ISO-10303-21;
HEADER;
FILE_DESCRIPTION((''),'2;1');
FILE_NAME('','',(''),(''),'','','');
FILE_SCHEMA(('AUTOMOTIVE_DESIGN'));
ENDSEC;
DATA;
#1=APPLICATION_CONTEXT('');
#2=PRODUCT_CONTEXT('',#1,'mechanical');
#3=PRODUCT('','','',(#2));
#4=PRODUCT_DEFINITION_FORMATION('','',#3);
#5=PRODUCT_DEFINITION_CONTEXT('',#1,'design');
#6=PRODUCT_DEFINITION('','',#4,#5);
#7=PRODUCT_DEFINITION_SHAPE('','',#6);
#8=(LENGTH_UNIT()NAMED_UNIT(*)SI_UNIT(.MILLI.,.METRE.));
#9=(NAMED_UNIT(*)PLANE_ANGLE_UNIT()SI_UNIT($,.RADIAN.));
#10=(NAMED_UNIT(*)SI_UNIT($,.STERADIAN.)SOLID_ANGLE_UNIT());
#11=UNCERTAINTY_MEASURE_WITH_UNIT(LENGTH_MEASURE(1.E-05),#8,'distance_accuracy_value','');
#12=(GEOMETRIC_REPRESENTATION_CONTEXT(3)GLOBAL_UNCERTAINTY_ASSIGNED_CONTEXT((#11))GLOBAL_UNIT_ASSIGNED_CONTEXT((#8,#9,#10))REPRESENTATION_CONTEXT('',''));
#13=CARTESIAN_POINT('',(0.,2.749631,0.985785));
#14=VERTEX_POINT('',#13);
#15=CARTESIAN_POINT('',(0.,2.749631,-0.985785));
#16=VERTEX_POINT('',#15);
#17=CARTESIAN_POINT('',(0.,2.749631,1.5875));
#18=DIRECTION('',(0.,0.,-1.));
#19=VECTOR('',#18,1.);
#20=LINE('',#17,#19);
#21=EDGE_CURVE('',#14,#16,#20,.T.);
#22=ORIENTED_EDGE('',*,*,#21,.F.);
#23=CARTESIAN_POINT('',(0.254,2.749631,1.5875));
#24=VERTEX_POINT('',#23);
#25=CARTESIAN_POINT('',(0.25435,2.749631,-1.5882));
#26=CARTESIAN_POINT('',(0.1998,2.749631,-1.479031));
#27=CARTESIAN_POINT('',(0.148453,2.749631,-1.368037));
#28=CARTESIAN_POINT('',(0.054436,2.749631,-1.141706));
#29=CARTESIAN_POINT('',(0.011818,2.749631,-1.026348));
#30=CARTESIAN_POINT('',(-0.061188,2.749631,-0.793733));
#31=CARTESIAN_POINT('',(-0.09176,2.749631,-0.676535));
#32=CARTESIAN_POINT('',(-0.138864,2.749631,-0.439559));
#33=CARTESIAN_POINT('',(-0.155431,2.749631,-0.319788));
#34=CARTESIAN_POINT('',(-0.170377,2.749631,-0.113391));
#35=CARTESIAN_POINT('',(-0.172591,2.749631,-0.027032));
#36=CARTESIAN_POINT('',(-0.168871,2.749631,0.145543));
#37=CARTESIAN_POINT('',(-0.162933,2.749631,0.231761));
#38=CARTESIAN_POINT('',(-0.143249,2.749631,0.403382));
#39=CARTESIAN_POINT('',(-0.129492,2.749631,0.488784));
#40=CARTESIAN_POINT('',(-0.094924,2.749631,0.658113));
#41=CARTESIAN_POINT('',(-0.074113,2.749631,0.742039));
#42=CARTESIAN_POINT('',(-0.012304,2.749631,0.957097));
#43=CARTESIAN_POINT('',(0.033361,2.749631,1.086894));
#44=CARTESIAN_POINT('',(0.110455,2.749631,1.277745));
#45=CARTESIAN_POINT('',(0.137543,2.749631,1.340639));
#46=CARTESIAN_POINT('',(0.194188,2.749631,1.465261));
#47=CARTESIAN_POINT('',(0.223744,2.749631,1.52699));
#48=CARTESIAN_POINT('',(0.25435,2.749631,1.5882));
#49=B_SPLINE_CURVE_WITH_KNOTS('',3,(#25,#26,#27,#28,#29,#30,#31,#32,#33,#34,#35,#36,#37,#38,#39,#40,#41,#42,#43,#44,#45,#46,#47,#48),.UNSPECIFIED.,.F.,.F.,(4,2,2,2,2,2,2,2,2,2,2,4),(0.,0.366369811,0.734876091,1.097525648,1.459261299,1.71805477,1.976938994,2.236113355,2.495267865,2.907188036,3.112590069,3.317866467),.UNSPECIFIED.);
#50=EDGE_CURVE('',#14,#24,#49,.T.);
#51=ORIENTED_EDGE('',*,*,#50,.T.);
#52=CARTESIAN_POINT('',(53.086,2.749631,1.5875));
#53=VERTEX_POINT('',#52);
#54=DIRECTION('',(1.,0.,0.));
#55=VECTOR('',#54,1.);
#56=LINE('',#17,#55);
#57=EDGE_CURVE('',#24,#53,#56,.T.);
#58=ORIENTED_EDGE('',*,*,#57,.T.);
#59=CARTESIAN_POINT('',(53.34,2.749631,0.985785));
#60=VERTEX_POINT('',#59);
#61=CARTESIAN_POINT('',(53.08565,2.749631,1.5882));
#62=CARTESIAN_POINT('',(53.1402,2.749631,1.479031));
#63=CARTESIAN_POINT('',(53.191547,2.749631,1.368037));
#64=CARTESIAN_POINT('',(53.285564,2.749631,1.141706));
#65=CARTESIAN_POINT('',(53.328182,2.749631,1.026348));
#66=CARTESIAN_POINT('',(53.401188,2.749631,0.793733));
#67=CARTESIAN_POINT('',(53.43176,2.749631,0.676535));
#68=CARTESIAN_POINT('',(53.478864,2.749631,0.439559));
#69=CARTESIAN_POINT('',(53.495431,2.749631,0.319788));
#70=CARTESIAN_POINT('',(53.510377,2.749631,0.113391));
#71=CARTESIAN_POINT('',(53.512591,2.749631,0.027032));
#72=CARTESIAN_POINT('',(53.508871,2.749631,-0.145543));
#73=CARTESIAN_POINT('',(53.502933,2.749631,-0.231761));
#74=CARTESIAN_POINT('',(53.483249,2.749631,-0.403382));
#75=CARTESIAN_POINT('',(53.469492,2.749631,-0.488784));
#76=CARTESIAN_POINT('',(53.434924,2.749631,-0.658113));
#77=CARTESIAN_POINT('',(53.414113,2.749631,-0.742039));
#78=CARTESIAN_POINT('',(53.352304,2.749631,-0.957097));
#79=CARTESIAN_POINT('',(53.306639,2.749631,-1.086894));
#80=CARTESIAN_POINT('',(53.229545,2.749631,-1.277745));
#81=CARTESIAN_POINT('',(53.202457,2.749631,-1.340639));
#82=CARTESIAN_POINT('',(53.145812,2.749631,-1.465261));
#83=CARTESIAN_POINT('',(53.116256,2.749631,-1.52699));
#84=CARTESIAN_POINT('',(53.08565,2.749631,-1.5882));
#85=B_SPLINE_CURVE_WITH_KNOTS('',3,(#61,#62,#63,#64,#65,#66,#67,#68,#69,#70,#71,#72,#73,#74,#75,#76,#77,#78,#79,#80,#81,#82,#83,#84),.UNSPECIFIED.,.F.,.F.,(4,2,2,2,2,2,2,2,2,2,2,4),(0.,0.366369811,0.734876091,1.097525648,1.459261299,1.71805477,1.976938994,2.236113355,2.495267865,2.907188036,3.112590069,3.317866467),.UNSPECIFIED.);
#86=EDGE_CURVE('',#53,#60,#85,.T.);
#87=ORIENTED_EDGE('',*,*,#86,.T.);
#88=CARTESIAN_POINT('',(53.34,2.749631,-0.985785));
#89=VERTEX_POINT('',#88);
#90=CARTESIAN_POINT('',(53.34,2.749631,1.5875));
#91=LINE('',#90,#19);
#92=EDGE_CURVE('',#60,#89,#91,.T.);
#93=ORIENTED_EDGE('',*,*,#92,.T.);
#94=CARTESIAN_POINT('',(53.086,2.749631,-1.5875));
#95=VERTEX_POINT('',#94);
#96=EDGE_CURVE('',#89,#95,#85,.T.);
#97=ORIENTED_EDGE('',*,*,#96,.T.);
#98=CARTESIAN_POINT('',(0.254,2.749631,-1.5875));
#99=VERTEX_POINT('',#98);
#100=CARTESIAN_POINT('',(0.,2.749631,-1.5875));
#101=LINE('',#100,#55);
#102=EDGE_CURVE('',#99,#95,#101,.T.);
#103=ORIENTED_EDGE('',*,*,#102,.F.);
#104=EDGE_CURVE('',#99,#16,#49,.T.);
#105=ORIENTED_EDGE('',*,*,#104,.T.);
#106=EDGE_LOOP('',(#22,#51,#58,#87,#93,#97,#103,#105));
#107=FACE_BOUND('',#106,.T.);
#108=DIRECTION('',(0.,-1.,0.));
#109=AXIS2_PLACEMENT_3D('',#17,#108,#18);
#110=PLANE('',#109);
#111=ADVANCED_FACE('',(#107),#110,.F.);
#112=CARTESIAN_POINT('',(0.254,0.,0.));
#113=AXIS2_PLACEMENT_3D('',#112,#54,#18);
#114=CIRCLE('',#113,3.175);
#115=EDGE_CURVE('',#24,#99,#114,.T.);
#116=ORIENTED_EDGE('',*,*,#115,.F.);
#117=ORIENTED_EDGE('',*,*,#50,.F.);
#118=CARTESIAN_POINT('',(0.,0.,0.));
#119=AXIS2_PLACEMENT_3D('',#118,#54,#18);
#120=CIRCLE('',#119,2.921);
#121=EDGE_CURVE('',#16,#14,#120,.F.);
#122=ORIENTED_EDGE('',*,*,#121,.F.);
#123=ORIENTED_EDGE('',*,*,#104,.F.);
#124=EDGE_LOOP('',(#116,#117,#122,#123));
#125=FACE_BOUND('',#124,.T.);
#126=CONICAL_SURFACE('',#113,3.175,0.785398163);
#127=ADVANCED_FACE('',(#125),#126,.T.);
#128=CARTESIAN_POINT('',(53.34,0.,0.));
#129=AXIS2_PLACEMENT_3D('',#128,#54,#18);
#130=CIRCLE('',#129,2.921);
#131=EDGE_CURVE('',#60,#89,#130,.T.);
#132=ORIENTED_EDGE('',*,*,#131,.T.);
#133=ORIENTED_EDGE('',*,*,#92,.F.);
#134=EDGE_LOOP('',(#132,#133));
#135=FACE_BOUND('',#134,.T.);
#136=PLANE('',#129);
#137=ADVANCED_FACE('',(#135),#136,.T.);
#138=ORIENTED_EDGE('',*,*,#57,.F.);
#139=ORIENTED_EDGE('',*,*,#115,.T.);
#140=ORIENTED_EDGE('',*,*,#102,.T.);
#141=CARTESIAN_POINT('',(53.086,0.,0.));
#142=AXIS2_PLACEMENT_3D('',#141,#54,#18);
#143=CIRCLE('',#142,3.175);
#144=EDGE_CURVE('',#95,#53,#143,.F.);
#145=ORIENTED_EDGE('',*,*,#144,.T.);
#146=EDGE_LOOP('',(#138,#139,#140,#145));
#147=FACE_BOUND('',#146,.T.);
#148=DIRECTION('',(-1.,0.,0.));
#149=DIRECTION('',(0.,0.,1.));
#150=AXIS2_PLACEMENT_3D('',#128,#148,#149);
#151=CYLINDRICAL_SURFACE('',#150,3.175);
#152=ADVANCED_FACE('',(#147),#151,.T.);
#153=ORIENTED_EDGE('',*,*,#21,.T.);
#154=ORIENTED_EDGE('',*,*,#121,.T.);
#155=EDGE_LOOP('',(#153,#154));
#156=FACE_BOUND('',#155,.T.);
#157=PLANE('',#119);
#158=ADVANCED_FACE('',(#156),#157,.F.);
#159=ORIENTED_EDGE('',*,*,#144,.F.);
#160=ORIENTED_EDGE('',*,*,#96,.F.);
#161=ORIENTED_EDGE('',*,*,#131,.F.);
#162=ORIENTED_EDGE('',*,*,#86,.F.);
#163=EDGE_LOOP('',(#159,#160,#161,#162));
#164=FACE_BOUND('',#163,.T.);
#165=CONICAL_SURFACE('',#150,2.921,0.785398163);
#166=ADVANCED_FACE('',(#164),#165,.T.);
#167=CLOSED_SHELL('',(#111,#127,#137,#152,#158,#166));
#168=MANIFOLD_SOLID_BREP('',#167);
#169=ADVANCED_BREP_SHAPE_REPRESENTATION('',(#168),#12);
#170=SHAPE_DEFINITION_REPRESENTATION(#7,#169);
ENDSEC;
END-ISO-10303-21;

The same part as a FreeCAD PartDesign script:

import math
import FreeCAD as App
import Part
import Sketcher
Q = App.Units.Quantity


def edges_at(feature, points):
    """Names of the edges that pass closest to the given points."""
    edges = feature.Shape.Edges
    near = lambda p: min(range(len(edges)), key=lambda i: edges[i].distToShape(Part.Vertex(*p))[0])
    return sorted({f"Edge{near(p) + 1}" for p in points})

doc = App.newDocument("Part")
body = doc.addObject("PartDesign::Body", "Body")

# Sketch on YZ plane
sketch1 = body.newObject("Sketcher::SketchObject", "Sketch")
sketch1.AttachmentSupport = (doc.getObject("YZ_Plane"), [""])
sketch1.MapMode = "FlatFace"
sketch1.addGeometry(Part.Circle(App.Vector(0, 0, 0), App.Vector(0, 0, 1), 3.2), False)
sketch1.addConstraint(Sketcher.Constraint("Coincident", 0, 3, -1, 1))
sketch1.addConstraint(Sketcher.Constraint("Diameter", 0, Q("0.25 in")))
pad1 = body.newObject("PartDesign::Pad", "Pad")
pad1.Profile = sketch1
pad1.Length = Q("2.1 in")
doc.recompute()

chamfer = body.newObject("PartDesign::Chamfer", "Chamfer")
chamfer.Base = (pad1, edges_at(pad1, [(0, 0, 3.175), (53.34, 0, 3.175)]))
chamfer.Size = Q("0.01 in")

# Sketch on YZ plane
sketch2 = body.newObject("Sketcher::SketchObject", "Sketch001")
sketch2.AttachmentSupport = (doc.getObject("YZ_Plane"), [""])
sketch2.MapMode = "FlatFace"
sketch2.AttachmentOffset = App.Placement(App.Vector(0, 0, 2.1 * 25.4), App.Rotation())
sketch2.addGeometry(Part.LineSegment(App.Vector(2.7, 1.6, 0), App.Vector(2.7, -1.6, 0)), False)
sketch2.addGeometry(Part.ArcOfCircle(Part.Circle(App.Vector(0, 0, 0), App.Vector(0, 0, 1), 3.2), math.radians(-30), math.radians(30)), False)
sketch2.addConstraint(Sketcher.Constraint("Coincident", 0, 1, 1, 2))
sketch2.addConstraint(Sketcher.Constraint("Coincident", 1, 1, 0, 2))
sketch2.addConstraint(Sketcher.Constraint("Vertical", 0))
sketch2.addConstraint(Sketcher.Constraint("Coincident", 1, 3, -1, 1))
sketch2.addConstraint(Sketcher.Constraint("Radius", 1, Q("0.125 in")))
sketch2.addConstraint(Sketcher.Constraint("DistanceY", 0, 2, 0, 1, Q("0.125 in")))
pocket1 = body.newObject("PartDesign::Pocket", "Pocket")
pocket1.Profile = sketch2
pocket1.Type = "ThroughAll"

doc.recompute()
